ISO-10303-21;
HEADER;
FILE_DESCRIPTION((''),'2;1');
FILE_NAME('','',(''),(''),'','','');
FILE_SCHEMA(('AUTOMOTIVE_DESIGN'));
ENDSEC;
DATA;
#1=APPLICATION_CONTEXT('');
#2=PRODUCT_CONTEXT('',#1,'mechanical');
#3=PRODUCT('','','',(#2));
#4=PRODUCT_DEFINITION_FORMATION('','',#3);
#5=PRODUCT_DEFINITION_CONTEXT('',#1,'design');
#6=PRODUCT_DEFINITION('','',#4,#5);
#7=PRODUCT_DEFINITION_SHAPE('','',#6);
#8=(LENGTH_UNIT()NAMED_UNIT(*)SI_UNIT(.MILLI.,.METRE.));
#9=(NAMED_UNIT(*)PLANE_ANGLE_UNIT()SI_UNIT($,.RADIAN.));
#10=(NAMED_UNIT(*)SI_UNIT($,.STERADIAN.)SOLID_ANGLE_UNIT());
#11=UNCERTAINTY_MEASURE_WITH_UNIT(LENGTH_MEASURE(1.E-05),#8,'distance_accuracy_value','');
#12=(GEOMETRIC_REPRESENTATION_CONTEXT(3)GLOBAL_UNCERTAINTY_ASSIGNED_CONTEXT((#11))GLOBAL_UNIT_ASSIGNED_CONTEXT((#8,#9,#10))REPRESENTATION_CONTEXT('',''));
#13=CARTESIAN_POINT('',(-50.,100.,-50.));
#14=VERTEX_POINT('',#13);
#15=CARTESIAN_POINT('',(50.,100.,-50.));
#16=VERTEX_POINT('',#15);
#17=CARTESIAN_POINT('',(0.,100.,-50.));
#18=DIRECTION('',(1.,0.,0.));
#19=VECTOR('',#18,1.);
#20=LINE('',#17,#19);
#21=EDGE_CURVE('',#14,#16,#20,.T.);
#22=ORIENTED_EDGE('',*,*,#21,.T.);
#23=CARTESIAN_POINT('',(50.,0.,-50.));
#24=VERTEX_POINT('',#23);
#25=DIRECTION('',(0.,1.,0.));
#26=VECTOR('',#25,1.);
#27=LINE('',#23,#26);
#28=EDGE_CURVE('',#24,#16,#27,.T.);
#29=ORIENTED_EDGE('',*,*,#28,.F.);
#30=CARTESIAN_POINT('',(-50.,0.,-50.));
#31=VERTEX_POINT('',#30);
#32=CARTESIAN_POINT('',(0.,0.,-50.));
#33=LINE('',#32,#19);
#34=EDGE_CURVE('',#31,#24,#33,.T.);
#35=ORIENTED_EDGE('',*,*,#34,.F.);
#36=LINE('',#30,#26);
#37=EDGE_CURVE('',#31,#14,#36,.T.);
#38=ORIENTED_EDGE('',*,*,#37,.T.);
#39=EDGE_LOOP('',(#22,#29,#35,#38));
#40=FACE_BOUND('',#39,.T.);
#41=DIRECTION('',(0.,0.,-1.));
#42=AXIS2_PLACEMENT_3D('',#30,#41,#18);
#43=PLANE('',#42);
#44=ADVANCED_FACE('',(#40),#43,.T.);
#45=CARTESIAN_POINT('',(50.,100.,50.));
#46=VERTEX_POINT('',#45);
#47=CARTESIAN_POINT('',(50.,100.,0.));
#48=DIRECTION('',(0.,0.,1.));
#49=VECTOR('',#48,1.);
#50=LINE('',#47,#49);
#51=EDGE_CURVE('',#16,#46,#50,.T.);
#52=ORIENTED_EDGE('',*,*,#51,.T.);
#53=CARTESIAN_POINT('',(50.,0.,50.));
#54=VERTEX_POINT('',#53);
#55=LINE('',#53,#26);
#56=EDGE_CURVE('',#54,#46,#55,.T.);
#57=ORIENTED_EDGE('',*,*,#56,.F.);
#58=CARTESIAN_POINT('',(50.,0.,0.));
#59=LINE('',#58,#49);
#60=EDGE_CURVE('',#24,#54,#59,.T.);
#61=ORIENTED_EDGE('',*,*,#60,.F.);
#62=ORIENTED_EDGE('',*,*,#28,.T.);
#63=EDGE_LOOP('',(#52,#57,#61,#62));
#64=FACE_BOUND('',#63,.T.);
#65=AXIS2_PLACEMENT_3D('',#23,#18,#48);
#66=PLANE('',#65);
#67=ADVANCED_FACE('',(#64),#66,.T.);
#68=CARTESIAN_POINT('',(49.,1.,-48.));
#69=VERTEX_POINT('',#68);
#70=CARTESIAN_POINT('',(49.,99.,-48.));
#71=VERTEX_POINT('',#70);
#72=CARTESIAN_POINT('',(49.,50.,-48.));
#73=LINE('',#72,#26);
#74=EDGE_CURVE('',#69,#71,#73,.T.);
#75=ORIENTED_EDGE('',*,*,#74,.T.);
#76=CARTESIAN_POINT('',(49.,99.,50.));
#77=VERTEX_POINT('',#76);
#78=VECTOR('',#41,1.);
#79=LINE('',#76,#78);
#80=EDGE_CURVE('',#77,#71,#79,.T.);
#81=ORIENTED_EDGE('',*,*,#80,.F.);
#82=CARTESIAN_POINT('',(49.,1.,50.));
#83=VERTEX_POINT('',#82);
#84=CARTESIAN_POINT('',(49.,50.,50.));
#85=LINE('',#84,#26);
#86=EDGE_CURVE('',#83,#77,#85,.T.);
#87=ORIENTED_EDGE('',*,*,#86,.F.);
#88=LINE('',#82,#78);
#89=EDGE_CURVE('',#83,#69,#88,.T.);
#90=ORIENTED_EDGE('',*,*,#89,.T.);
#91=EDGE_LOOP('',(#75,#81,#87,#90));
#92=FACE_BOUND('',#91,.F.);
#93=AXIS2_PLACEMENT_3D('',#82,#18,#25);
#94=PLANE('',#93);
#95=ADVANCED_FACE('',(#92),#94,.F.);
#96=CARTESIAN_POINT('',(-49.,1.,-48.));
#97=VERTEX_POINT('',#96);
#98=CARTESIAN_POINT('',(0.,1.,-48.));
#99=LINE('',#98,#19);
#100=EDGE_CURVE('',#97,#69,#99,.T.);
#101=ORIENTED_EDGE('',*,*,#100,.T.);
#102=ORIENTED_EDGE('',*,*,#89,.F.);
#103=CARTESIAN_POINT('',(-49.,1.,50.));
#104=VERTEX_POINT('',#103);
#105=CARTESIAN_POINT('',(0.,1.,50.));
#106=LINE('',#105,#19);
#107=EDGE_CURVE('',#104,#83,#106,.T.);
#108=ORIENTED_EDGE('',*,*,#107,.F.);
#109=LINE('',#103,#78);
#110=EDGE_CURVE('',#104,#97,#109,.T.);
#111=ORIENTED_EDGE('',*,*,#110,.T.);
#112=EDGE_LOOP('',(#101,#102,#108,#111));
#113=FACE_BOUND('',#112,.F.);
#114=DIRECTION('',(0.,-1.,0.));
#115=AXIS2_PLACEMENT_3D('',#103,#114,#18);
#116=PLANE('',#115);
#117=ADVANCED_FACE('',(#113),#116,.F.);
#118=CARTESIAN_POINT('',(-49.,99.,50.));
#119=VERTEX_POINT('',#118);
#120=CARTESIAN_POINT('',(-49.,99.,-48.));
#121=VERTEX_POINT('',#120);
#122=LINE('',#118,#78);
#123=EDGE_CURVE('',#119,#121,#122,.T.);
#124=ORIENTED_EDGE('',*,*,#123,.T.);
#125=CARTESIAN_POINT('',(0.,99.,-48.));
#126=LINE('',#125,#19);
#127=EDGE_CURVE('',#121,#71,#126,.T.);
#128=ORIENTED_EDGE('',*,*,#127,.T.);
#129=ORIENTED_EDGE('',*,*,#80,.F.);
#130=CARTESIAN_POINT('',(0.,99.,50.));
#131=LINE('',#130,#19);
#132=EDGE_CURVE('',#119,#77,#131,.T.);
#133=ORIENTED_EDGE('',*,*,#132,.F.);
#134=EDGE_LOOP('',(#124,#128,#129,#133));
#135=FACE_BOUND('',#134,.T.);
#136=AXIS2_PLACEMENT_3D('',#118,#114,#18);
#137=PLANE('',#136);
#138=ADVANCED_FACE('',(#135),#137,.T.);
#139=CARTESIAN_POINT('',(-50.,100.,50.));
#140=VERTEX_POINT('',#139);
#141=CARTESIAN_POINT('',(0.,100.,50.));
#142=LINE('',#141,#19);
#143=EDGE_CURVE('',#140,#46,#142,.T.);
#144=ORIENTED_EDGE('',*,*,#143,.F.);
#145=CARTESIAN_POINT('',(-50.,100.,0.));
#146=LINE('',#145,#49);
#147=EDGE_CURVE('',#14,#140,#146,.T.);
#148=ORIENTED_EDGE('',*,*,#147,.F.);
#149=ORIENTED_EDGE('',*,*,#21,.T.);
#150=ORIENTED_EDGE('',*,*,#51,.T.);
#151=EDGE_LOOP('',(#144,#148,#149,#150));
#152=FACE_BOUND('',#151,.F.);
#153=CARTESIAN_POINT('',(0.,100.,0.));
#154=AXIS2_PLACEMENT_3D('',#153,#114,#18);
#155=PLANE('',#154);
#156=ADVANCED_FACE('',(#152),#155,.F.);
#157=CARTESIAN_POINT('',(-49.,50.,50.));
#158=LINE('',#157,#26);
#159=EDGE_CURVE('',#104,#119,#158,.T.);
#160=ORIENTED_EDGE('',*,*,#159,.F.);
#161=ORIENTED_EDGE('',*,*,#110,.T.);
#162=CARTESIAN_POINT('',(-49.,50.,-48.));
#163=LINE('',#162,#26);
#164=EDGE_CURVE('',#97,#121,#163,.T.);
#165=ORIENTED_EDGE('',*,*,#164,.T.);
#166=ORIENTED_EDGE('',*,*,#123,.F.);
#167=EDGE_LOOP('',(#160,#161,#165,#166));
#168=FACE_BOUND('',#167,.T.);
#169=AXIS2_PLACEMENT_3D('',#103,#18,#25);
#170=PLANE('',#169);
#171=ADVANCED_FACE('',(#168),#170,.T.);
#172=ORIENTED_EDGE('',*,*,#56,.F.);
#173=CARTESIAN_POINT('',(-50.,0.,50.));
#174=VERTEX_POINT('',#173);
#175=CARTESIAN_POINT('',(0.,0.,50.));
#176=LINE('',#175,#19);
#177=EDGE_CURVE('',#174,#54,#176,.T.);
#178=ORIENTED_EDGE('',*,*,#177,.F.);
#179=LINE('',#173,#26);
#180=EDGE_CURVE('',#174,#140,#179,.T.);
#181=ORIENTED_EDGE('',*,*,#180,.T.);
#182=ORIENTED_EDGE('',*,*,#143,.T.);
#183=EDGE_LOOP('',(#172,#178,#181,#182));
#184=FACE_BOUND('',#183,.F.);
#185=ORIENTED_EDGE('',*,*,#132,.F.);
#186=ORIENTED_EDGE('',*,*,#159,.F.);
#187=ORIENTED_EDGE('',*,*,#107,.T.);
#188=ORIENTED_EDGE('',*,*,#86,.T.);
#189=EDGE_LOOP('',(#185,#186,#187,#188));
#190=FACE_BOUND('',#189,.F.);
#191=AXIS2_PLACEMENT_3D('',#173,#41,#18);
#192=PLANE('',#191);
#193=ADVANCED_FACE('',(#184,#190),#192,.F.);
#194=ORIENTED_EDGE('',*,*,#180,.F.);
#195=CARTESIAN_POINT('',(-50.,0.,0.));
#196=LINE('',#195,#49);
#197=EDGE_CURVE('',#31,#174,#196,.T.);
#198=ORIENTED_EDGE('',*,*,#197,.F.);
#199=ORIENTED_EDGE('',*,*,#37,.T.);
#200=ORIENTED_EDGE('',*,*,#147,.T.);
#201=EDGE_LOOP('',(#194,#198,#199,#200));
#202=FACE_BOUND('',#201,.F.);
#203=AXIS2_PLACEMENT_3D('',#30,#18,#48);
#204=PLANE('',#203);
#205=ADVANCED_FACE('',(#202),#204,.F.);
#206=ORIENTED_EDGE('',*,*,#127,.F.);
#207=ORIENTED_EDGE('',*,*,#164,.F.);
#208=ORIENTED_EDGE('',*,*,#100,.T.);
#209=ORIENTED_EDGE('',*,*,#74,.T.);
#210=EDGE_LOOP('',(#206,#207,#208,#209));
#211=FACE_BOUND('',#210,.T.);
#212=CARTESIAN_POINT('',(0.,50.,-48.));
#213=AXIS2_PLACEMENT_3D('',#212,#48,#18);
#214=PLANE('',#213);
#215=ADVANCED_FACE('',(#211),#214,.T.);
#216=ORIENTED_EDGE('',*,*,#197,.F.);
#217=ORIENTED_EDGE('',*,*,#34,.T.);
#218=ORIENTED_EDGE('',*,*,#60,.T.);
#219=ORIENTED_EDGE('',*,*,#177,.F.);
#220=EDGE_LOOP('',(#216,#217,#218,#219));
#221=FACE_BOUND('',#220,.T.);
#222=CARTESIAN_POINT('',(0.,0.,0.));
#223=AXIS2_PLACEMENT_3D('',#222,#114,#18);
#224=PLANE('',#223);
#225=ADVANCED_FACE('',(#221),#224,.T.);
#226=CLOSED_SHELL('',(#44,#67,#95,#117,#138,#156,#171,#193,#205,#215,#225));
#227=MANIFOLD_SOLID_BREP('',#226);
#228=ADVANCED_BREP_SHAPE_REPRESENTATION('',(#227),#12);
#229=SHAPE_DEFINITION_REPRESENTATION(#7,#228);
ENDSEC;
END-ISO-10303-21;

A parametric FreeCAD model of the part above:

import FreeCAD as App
import Part
import Sketcher

V = App.Vector

doc = App.newDocument("Part")
body = doc.addObject("PartDesign::Body", "Body")

# Sketch on XZ plane
sketch1 = body.newObject("Sketcher::SketchObject", "Sketch")
sketch1.AttachmentSupport = (doc.getObject("XZ_Plane"), [""])
sketch1.MapMode = "FlatFace"
sketch1.addGeometry([
    Part.LineSegment(V(-50, 50, 0), V(-50, -50, 0)),
    Part.LineSegment(V(-50, -50, 0), V(50, -50, 0)),
    Part.LineSegment(V(50, -50, 0), V(50, 50, 0)),
    Part.LineSegment(V(50, 50, 0), V(-50, 50, 0)),
], False)
sketch1.addConstraint([
    Sketcher.Constraint("Coincident", 0, 2, 1, 1),
    Sketcher.Constraint("Coincident", 1, 2, 2, 1),
    Sketcher.Constraint("Coincident", 2, 2, 3, 1),
    Sketcher.Constraint("Coincident", 3, 2, 0, 1),
    Sketcher.Constraint("Vertical", 0),
    Sketcher.Constraint("Horizontal", 1),
    Sketcher.Constraint("Vertical", 2),
    Sketcher.Constraint("Horizontal", 3),
    Sketcher.Constraint("Symmetric", 0, 2, 2, 2, -1, 1),
    Sketcher.Constraint("Equal", 3, 0),
    Sketcher.Constraint("DistanceX", 1, 1, 1, 2, 100.0),
])
pad1 = body.newObject("PartDesign::Pad", "Pad")
pad1.Profile = sketch1
pad1.Length = 100
pad1.Reversed = True

# Sketch on XY plane
sketch2 = body.newObject("Sketcher::SketchObject", "Sketch001")
sketch2.AttachmentSupport = (doc.getObject("XY_Plane"), [""])
sketch2.MapMode = "FlatFace"
sketch2.AttachmentOffset = App.Placement(V(0, 0, 50), App.Rotation())
sketch2.addGeometry([
    Part.LineSegment(V(-49, 99, 0), V(-49, 1, 0)),
    Part.LineSegment(V(-49, 1, 0), V(49, 1, 0)),
    Part.LineSegment(V(49, 1, 0), V(49, 99, 0)),
    Part.LineSegment(V(49, 99, 0), V(-49, 99, 0)),
], False)
sketch2.addConstraint([
    Sketcher.Constraint("Coincident", 0, 2, 1, 1),
    Sketcher.Constraint("Coincident", 1, 2, 2, 1),
    Sketcher.Constraint("Coincident", 2, 2, 3, 1),
    Sketcher.Constraint("Coincident", 3, 2, 0, 1),
    Sketcher.Constraint("Vertical", 0),
    Sketcher.Constraint("Horizontal", 1),
    Sketcher.Constraint("Vertical", 2),
    Sketcher.Constraint("Horizontal", 3),
    Sketcher.Constraint("Equal", 3, 0),
    Sketcher.Constraint("DistanceX", 1, 1, 1, 2, 98.0),
    Sketcher.Constraint("DistanceX", 0, 2, -1, 1, 49.0),
    Sketcher.Constraint("DistanceY", -1, 1, 0, 2, 1.0),
])
pocket1 = body.newObject("PartDesign::Pocket", "Pocket")
pocket1.Profile = sketch2
pocket1.Length = 98

doc.recompute()
